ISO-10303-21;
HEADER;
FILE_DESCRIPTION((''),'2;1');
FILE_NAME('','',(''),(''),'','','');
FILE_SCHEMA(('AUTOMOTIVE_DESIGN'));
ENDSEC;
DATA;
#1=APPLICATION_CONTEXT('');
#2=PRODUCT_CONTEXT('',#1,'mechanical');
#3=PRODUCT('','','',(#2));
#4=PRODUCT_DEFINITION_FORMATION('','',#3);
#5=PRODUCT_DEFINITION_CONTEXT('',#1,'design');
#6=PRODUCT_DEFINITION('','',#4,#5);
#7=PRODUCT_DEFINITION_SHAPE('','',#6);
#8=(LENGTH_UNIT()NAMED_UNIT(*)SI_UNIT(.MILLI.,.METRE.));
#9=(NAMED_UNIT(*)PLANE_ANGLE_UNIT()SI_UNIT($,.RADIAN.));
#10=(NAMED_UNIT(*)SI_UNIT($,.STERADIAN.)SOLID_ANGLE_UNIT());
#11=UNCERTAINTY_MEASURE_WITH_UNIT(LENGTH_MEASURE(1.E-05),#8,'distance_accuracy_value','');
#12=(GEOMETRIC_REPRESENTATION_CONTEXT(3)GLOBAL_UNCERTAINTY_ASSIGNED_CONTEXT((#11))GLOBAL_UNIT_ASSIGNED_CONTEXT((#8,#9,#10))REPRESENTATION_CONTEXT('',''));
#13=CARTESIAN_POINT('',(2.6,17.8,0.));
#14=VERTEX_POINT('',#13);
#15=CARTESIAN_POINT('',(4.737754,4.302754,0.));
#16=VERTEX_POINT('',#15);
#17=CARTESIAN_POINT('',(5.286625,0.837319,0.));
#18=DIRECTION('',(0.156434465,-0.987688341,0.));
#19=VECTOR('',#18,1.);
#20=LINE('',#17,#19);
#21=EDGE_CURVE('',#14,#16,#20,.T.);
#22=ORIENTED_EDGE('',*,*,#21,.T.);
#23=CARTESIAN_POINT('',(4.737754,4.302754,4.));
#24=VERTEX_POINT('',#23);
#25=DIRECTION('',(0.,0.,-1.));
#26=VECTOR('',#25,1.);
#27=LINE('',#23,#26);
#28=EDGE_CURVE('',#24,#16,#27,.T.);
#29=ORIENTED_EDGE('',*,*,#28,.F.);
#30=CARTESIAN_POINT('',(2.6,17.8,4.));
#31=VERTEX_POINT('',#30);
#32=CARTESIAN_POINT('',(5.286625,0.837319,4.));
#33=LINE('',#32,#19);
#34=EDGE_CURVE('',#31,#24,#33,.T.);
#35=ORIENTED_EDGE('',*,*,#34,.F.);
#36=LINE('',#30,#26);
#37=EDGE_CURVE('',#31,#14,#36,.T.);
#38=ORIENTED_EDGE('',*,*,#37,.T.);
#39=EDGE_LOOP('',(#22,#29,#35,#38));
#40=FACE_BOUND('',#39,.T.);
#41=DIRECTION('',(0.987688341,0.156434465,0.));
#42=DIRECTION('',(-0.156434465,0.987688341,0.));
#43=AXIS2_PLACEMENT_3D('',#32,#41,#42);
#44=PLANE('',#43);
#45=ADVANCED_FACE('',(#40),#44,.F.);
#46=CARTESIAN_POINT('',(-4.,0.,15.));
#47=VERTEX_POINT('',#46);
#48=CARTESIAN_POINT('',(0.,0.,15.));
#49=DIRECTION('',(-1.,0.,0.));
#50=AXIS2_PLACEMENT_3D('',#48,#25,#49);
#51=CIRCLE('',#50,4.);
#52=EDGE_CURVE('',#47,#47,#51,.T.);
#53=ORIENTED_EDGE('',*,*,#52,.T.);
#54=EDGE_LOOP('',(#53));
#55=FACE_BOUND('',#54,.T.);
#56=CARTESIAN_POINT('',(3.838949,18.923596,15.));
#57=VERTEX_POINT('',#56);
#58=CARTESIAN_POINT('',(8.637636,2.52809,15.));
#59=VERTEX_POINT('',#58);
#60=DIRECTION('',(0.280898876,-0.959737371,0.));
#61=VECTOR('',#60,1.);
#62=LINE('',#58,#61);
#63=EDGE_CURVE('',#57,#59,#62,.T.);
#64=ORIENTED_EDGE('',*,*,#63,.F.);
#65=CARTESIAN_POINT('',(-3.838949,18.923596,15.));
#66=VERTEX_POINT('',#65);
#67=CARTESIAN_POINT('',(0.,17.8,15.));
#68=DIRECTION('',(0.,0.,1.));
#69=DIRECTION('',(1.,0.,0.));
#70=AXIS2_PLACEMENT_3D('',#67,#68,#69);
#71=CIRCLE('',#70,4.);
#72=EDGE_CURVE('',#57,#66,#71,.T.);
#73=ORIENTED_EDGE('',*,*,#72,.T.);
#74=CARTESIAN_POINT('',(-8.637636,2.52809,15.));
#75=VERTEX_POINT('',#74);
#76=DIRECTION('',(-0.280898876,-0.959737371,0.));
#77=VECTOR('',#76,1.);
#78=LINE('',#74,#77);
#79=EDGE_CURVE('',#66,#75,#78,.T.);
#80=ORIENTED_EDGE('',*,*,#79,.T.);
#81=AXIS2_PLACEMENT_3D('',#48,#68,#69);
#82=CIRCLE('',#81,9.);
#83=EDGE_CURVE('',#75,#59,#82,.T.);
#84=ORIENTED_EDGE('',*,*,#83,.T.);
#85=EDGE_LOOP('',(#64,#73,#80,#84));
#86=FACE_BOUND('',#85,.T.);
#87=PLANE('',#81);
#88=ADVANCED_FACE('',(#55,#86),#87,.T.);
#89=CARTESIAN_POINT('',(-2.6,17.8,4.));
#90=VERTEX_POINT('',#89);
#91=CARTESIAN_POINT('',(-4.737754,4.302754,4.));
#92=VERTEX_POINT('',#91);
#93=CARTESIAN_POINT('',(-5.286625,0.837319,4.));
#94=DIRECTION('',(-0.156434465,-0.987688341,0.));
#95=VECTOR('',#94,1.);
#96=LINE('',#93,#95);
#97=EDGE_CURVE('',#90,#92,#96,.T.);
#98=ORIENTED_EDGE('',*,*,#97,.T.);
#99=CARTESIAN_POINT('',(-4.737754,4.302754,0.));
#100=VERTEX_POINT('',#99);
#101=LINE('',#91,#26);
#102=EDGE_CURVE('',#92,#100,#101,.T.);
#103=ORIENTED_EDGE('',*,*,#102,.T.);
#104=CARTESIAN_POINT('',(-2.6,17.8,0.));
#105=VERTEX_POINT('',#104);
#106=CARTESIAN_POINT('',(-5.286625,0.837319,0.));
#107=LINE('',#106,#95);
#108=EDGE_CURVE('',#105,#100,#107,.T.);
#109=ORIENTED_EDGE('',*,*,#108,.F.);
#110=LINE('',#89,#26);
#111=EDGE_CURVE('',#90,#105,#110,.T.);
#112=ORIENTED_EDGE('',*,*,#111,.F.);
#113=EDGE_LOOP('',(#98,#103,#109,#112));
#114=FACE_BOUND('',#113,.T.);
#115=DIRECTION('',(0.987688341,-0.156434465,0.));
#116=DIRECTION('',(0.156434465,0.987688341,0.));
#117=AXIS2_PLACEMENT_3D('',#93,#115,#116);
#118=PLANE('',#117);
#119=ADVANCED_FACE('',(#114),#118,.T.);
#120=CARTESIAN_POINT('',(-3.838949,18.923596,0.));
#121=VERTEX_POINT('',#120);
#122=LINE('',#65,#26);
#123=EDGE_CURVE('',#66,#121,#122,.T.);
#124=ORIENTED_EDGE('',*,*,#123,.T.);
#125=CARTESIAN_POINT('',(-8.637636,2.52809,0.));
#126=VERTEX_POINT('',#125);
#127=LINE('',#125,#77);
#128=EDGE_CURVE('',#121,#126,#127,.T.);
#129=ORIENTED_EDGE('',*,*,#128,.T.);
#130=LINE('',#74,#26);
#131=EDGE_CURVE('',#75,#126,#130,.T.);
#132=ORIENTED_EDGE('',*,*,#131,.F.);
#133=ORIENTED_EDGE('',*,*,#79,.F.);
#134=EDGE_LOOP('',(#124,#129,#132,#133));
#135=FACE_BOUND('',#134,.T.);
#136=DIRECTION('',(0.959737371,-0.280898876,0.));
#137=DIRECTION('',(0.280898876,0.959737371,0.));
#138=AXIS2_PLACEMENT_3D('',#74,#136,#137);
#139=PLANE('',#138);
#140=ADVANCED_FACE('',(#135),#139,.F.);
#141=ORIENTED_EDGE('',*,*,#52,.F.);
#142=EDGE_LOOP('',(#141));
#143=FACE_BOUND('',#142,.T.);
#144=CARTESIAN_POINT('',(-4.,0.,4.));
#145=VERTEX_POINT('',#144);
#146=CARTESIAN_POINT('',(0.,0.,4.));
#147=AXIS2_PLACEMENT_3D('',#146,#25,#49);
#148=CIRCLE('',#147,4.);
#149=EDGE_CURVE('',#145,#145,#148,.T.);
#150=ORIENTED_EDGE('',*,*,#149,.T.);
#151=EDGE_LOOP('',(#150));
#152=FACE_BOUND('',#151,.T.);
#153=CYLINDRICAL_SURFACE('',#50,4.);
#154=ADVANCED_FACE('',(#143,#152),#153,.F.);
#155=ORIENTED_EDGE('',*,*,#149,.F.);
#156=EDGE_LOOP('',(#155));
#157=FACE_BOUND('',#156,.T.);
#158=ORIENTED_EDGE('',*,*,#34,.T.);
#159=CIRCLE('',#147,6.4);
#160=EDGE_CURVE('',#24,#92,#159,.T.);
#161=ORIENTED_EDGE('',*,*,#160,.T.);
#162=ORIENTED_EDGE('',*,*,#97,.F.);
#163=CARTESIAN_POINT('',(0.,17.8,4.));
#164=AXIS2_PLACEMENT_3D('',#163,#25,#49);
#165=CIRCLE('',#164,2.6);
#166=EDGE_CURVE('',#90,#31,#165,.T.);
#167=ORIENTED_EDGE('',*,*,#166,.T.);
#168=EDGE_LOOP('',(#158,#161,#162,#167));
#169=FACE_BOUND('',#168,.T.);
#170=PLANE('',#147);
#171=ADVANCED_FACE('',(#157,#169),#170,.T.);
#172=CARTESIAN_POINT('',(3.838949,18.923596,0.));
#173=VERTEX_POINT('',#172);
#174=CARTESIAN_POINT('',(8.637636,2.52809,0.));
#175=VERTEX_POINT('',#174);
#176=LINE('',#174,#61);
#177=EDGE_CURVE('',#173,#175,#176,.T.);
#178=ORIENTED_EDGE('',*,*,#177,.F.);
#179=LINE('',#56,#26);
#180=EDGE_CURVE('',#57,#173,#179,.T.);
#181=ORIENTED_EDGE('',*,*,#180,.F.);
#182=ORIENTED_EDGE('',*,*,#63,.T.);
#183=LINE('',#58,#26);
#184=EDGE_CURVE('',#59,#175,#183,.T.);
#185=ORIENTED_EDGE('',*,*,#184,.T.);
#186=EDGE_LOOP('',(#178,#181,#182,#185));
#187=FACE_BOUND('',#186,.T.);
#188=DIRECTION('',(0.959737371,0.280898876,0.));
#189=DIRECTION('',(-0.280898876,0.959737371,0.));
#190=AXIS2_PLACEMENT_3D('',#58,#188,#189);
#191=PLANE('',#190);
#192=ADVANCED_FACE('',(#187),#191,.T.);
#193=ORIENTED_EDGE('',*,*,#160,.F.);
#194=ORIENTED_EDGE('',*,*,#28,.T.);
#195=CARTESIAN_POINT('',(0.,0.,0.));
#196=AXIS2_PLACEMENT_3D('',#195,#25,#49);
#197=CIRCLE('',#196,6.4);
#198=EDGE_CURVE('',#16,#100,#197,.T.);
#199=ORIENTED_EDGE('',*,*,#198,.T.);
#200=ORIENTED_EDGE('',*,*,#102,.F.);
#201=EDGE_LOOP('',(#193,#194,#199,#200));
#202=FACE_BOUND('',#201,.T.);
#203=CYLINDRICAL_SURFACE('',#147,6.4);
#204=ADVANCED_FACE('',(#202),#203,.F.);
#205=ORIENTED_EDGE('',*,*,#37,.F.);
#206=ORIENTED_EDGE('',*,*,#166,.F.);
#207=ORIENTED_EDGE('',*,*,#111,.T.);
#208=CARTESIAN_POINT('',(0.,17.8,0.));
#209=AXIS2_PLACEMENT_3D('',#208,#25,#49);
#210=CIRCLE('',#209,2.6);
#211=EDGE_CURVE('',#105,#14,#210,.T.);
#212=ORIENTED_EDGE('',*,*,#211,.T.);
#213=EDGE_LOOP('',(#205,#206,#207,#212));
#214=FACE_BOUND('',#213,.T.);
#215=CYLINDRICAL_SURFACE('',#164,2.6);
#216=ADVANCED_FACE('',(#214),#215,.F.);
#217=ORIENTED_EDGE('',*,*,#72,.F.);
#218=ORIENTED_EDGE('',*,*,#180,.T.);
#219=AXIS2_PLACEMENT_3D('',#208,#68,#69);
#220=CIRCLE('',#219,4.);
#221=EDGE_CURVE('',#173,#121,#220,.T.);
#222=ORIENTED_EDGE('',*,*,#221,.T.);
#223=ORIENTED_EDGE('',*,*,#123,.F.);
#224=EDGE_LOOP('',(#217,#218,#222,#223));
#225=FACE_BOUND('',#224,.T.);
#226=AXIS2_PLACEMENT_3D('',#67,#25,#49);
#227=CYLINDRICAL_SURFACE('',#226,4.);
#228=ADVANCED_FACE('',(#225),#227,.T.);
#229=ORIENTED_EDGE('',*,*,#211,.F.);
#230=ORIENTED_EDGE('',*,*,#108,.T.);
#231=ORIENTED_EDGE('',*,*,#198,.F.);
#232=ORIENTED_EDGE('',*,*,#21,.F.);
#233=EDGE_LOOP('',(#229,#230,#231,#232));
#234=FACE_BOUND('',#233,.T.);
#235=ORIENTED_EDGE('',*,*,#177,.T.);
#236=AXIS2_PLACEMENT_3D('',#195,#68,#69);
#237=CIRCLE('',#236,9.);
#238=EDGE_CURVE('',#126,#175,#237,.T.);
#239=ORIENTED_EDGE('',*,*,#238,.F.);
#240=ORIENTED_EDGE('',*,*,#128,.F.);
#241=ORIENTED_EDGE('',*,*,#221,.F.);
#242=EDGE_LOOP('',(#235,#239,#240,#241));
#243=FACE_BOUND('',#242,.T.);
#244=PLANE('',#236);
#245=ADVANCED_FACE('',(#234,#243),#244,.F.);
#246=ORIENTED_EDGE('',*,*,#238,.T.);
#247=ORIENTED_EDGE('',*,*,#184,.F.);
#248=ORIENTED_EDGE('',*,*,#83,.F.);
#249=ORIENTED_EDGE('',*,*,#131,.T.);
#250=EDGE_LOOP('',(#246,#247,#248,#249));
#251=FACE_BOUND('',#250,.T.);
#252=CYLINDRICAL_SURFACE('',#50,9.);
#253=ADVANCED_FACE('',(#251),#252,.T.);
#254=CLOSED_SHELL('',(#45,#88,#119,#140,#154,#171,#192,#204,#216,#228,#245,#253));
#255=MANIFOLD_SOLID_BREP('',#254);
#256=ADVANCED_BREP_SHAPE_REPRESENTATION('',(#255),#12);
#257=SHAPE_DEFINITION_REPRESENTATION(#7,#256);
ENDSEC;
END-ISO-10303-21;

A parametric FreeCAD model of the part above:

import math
import FreeCAD as App
import Part
import Sketcher
Q = App.Units.Quantity

doc = App.newDocument("Part")
params = doc.addObject("Spreadsheet::Sheet", "Params")
for row, (alias, value) in enumerate([
    ("sketch1_radius", "4 mm"),
    ("sketch1_radius2", "9 mm"),
    ("pad1_length", "15 mm"),
    ("sketch2_diameter", "8 mm"),
    ("sketch2_radius", "2.6 mm"),
    ("sketch2_radius2", "6.4 mm"),
    ("pocket1_length", "4 mm"),
    ("sketch3_diameter", "8 mm"),
], start=1):
    params.set(f"A{row}", alias)
    params.set(f"B{row}", "=" + value)
    params.setAlias(f"B{row}", alias)

body = doc.addObject("PartDesign::Body", "Body")

# Sketch on XY plane
sketch1 = body.newObject("Sketcher::SketchObject", "Sketch")
sketch1.AttachmentSupport = (doc.getObject("XY_Plane"), [""])
sketch1.MapMode = "FlatFace"
sketch1.addGeometry([
    Part.LineSegment(App.Vector(8.6, 2.5, 0), App.Vector(3.8, 18.9, 0)),
    Part.ArcOfCircle(Part.Circle(App.Vector(0, 17.8, 0), App.Vector(0, 0, 1), 4), math.radians(16), math.radians(164)),
    Part.LineSegment(App.Vector(-3.8, 18.9, 0), App.Vector(-8.6, 2.5, 0)),
    Part.ArcOfCircle(Part.Circle(App.Vector(0, 0, 0), App.Vector(0, 0, 1), 9), math.radians(164), math.radians(376)),
], False)
sketch1.addConstraint([
    Sketcher.Constraint("Tangent", 0, 2, 1, 1),
    Sketcher.Constraint("Tangent", 1, 2, 2, 1),
    Sketcher.Constraint("Tangent", 2, 2, 3, 1),
    Sketcher.Constraint("Tangent", 3, 2, 0, 1),
    Sketcher.Constraint("Coincident", 3, 3, -1, 1),
    Sketcher.Constraint("PointOnObject", 1, 3, -2),
    Sketcher.Constraint("Radius", 1, 4.0),
    Sketcher.Constraint("Radius", 3, 9.0),
    Sketcher.Constraint("DistanceY", -1, 1, 1, 3, 17.8),
])
sketch1.setExpression("Constraints[6]", "Params.sketch1_radius")
sketch1.setExpression("Constraints[7]", "Params.sketch1_radius2")
pad1 = body.newObject("PartDesign::Pad", "Pad")
pad1.Profile = sketch1
pad1.setExpression("Length", "Params.pad1_length")

# Sketch on XY plane
sketch2 = body.newObject("Sketcher::SketchObject", "Sketch001")
sketch2.AttachmentSupport = (doc.getObject("XY_Plane"), [""])
sketch2.MapMode = "FlatFace"
sketch2.addGeometry([
    Part.LineSegment(App.Vector(-4.7, 4.3, 0), App.Vector(-2.6, 17.8, 0)),  # 0
    Part.ArcOfCircle(Part.Circle(App.Vector(0, 17.8, 0), App.Vector(0, 0, 1), 2.6), math.radians(0), math.radians(180)),  # 1
    Part.LineSegment(App.Vector(2.6, 17.8, 0), App.Vector(4.7, 4.3, 0)),  # 2
    Part.ArcOfCircle(Part.Circle(App.Vector(0, 0, 0), App.Vector(0, 0, 1), 6.4), math.radians(138), math.radians(402)),  # 3
    Part.Circle(App.Vector(0, 0, 0), App.Vector(0, 0, 1), 4),  # 4
], False)
sketch2.addConstraint([
    Sketcher.Constraint("Coincident", 0, 2, 1, 2),
    Sketcher.Constraint("Coincident", 1, 1, 2, 1),
    Sketcher.Constraint("Coincident", 2, 2, 3, 2),
    Sketcher.Constraint("Coincident", 3, 1, 0, 1),
    Sketcher.Constraint("Coincident", 3, 3, -1, 1),
    Sketcher.Constraint("Coincident", 4, 3, -1, 1),
    Sketcher.Constraint("Symmetric", 0, 2, 1, 1, -2),
    Sketcher.Constraint("Horizontal", 1, 3, 0, 2),
    Sketcher.Constraint("Horizontal", 2, 2, 3, 1),
    Sketcher.Constraint("Diameter", 4, 8.0),
    Sketcher.Constraint("Radius", 1, 2.6),
    Sketcher.Constraint("Radius", 3, 6.4),
    Sketcher.Constraint("Angle", 0, Q("81 deg")),
    Sketcher.Constraint("DistanceY", -1, 1, 1, 3, 17.8),
])
sketch2.setExpression("Constraints[9]", "Params.sketch2_diameter")
sketch2.setExpression("Constraints[10]", "Params.sketch2_radius")
sketch2.setExpression("Constraints[11]", "Params.sketch2_radius2")
pocket1 = body.newObject("PartDesign::Pocket", "Pocket")
pocket1.Profile = sketch2
pocket1.setExpression("Length", "Params.pocket1_length")
pocket1.Reversed = True

# Sketch on XY plane
sketch3 = body.newObject("Sketcher::SketchObject", "Sketch002")
sketch3.AttachmentSupport = (doc.getObject("XY_Plane"), [""])
sketch3.MapMode = "FlatFace"
sketch3.addGeometry(Part.Circle(App.Vector(0, 0, 0), App.Vector(0, 0, 1), 4), False)
sketch3.addConstraint([
    Sketcher.Constraint("Coincident", 0, 3, -1, 1),
    Sketcher.Constraint("Diameter", 0, 8.0),
])
sketch3.setExpression("Constraints[1]", "Params.sketch3_diameter")
pocket2 = body.newObject("PartDesign::Pocket", "Pocket001")
pocket2.Profile = sketch3
pocket2.Type = "ThroughAll"
pocket2.Reversed = True

doc.recompute()
